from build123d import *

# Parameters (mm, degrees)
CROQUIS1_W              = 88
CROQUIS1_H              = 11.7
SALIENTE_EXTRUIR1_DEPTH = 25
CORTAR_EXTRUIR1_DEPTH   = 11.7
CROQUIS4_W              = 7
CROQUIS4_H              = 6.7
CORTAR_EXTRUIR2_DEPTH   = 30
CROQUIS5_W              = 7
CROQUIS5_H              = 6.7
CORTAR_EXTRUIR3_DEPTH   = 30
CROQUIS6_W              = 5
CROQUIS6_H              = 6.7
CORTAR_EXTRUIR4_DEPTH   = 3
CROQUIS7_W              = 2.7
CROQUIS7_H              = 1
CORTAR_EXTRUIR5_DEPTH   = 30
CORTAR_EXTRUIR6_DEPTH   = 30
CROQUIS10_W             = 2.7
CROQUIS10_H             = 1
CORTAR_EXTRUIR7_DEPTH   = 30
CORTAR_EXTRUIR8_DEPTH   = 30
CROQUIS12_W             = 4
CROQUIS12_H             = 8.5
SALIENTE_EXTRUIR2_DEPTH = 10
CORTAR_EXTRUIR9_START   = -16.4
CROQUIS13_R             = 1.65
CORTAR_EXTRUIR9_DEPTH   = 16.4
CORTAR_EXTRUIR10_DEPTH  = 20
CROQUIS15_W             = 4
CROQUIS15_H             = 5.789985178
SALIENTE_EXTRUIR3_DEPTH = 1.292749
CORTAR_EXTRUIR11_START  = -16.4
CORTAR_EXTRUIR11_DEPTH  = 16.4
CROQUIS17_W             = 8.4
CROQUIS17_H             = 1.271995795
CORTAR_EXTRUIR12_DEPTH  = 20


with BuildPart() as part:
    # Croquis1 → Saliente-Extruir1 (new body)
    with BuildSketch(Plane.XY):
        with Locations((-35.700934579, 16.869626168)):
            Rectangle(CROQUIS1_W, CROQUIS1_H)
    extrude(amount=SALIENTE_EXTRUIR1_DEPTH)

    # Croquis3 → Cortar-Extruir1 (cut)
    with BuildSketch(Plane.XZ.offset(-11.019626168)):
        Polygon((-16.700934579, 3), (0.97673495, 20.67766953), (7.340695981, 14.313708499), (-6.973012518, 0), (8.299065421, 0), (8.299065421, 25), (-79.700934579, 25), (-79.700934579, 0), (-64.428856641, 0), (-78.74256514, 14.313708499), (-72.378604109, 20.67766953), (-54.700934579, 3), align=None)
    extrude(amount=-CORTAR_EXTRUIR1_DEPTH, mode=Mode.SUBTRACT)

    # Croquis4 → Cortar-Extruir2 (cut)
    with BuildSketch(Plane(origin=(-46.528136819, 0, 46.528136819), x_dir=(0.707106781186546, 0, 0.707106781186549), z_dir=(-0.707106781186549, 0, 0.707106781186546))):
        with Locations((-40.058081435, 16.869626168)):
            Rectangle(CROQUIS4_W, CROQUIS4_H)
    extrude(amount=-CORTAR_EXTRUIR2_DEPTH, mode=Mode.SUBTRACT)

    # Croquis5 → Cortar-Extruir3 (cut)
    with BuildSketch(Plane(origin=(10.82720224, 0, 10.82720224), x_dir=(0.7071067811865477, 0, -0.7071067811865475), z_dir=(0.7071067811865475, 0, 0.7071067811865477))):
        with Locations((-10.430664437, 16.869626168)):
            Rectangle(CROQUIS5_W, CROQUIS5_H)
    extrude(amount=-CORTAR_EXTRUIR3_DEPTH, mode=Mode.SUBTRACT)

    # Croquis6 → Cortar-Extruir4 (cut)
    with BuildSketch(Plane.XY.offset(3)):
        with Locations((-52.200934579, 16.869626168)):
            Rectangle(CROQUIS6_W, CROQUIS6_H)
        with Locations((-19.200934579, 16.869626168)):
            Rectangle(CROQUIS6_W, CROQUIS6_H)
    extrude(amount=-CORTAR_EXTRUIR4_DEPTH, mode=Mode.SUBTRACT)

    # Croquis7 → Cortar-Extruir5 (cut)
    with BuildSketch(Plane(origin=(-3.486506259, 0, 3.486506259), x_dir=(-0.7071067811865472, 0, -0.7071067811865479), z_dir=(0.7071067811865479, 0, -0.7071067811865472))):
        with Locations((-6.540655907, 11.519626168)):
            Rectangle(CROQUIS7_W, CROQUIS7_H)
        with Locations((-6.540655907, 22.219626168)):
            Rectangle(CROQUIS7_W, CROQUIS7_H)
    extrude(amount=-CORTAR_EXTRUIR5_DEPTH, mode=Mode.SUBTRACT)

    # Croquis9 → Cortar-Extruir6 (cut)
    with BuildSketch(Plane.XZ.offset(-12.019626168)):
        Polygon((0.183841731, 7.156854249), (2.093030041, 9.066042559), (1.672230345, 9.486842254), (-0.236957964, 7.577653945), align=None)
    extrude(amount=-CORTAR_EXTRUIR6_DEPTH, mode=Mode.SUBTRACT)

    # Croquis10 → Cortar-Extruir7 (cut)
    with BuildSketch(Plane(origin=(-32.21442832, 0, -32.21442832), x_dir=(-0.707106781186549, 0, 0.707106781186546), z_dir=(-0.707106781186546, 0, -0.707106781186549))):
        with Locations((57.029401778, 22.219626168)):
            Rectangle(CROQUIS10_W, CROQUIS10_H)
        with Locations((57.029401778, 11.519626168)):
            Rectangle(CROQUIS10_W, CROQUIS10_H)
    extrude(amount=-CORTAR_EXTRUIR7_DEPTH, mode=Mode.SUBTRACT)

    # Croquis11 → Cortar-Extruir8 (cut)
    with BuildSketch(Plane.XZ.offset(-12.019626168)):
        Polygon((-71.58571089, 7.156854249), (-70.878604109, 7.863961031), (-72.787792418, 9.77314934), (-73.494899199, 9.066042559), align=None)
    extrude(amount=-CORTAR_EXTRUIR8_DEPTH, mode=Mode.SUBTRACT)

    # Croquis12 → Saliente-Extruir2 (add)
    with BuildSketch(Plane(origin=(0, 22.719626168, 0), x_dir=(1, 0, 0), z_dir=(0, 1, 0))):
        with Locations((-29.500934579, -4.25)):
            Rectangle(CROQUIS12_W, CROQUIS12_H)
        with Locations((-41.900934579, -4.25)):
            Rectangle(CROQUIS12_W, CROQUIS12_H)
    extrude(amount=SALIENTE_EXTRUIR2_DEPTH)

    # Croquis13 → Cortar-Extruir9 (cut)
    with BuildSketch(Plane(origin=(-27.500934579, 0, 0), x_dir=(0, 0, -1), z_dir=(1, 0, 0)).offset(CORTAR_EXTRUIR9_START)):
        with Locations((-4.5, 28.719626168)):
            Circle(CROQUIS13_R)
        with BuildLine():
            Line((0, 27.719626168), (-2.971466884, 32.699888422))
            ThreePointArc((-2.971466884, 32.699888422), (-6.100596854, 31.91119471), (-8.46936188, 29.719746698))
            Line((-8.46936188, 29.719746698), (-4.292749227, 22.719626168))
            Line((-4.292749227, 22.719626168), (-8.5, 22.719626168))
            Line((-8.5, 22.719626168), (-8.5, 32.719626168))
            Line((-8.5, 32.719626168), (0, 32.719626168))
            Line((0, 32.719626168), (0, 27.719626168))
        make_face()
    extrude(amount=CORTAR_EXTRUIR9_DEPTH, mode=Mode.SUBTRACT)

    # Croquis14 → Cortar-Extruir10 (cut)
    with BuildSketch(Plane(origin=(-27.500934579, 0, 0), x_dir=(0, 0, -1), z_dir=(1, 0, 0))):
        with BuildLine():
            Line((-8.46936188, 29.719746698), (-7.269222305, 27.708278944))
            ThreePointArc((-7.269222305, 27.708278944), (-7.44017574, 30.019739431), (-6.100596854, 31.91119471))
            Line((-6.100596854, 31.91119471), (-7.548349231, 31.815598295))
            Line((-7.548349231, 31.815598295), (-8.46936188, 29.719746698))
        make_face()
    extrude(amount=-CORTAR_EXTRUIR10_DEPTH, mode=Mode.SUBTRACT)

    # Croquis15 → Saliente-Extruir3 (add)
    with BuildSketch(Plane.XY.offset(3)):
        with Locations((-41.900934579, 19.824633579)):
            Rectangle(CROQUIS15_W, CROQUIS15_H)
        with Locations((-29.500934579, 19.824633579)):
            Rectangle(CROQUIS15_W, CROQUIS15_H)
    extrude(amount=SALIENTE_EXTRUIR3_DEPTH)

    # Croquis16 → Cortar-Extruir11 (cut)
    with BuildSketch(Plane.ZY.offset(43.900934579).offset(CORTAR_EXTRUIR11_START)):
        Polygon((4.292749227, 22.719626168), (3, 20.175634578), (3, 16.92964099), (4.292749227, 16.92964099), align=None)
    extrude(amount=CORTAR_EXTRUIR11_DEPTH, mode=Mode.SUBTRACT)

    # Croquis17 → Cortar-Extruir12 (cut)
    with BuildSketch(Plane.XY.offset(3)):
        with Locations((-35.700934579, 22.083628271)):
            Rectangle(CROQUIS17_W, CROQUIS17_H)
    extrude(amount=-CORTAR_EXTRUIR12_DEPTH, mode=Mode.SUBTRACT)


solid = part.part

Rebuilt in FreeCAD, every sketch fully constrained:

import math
import FreeCAD as App
import Part
import Sketcher
from FreeCAD import Vector
Q = App.Units.Quantity

doc = App.newDocument("Part")
body = doc.addObject("PartDesign::Body", "Body")

# Sketch on XY plane
sketch1 = body.newObject("Sketcher::SketchObject", "Sketch")
sketch1.AttachmentSupport = (doc.getObject("XY_Plane"), [""])
sketch1.MapMode = "FlatFace"
sketch1.addGeometry([
    Part.LineSegment(Vector(-80, 23, 0), Vector(-80, 11, 0)),
    Part.LineSegment(Vector(-80, 11, 0), Vector(8, 11, 0)),
    Part.LineSegment(Vector(8, 11, 0), Vector(8, 23, 0)),
    Part.LineSegment(Vector(8, 23, 0), Vector(-80, 23, 0)),
], False)
sketch1.addConstraint([
    Sketcher.Constraint("Coincident", 0, 2, 1, 1),
    Sketcher.Constraint("Coincident", 1, 2, 2, 1),
    Sketcher.Constraint("Coincident", 2, 2, 3, 1),
    Sketcher.Constraint("Coincident", 3, 2, 0, 1),
    Sketcher.Constraint("Vertical", 0),
    Sketcher.Constraint("Horizontal", 1),
    Sketcher.Constraint("Vertical", 2),
    Sketcher.Constraint("Horizontal", 3),
    Sketcher.Constraint("DistanceX", 1, 1, 1, 2, 88.0),
    Sketcher.Constraint("DistanceY", 0, 2, 0, 1, 11.7),
    Sketcher.Constraint("DistanceX", 0, 2, -1, 1, 79.700935),
    Sketcher.Constraint("DistanceY", -1, 1, 0, 2, 11.019626),
])
pad1 = body.newObject("PartDesign::Pad", "Pad")
pad1.Profile = sketch1
pad1.Length = 25

# Sketch on XZ plane
sketch2 = body.newObject("Sketcher::SketchObject", "Sketch001")
sketch2.AttachmentSupport = (doc.getObject("XZ_Plane"), [""])
sketch2.MapMode = "FlatFace"
sketch2.AttachmentOffset = App.Placement(Vector(0, 0, -11.019626), App.Rotation())
sketch2.addGeometry([
    Part.LineSegment(Vector(-17, 3, 0), Vector(1, 21, 0)),  # 0
    Part.LineSegment(Vector(1, 21, 0), Vector(7, 14, 0)),  # 1
    Part.LineSegment(Vector(7, 14, 0), Vector(-7, 0, 0)),  # 2
    Part.LineSegment(Vector(-7, 0, 0), Vector(8, 0, 0)),  # 3
    Part.LineSegment(Vector(8, 0, 0), Vector(8, 25, 0)),  # 4
    Part.LineSegment(Vector(8, 25, 0), Vector(-80, 25, 0)),  # 5
    Part.LineSegment(Vector(-80, 25, 0), Vector(-80, 0, 0)),  # 6
    Part.LineSegment(Vector(-80, 0, 0), Vector(-64, 0, 0)),  # 7
    Part.LineSegment(Vector(-64, 0, 0), Vector(-79, 14, 0)),  # 8
    Part.LineSegment(Vector(-79, 14, 0), Vector(-72, 21, 0)),  # 9
    Part.LineSegment(Vector(-72, 21, 0), Vector(-55, 3, 0)),  # 10
    Part.LineSegment(Vector(-55, 3, 0), Vector(-17, 3, 0)),  # 11
], False)
sketch2.addConstraint([
    Sketcher.Constraint("Coincident", 0, 2, 1, 1),
    Sketcher.Constraint("Coincident", 1, 2, 2, 1),
    Sketcher.Constraint("Coincident", 2, 2, 3, 1),
    Sketcher.Constraint("Coincident", 3, 2, 4, 1),
    Sketcher.Constraint("Coincident", 4, 2, 5, 1),
    Sketcher.Constraint("Coincident", 5, 2, 6, 1),
    Sketcher.Constraint("Coincident", 6, 2, 7, 1),
    Sketcher.Constraint("Coincident", 7, 2, 8, 1),
    Sketcher.Constraint("Coincident", 8, 2, 9, 1),
    Sketcher.Constraint("Coincident", 9, 2, 10, 1),
    Sketcher.Constraint("Coincident", 10, 2, 11, 1),
    Sketcher.Constraint("Coincident", 11, 2, 0, 1),
    Sketcher.Constraint("Horizontal", 3),
    Sketcher.Constraint("Vertical", 4),
    Sketcher.Constraint("Horizontal", 5),
    Sketcher.Constraint("Vertical", 6),
    Sketcher.Constraint("Horizontal", 7),
    Sketcher.Constraint("Horizontal", 11),
    Sketcher.Constraint("PointOnObject", 2, 2, -1),
    Sketcher.Constraint("PointOnObject", 6, 2, -1),
    Sketcher.Constraint("Perpendicular", 0, 1),
    Sketcher.Constraint("Perpendicular", 1, 2),
    Sketcher.Constraint("Perpendicular", 2, 8),
    Sketcher.Constraint("Perpendicular", 8, 9),
    Sketcher.Constraint("Perpendicular", 9, 10),
    Sketcher.Constraint("Horizontal", 1, 2, 8, 2),
    Sketcher.Constraint("Horizontal", 0, 2, 9, 2),
    Sketcher.Constraint("Equal", 3, 7),
    Sketcher.Constraint("Equal", 2, 8),
    Sketcher.Constraint("DistanceX", 5, 2, 5, 1, 88.0),
    Sketcher.Constraint("DistanceX", 11, 1, 11, 2, 38.0),
    Sketcher.Constraint("DistanceY", 4, 1, 4, 2, 25.0),
    Sketcher.Constraint("Distance", 0, 25.0),
    Sketcher.Constraint("Distance", 1, 9.0),
    Sketcher.Constraint("DistanceY", -1, 1, 10, 2, 3.0),
    Sketcher.Constraint("DistanceX", -1, 1, 0, 2, 0.976735),
])
pocket1 = body.newObject("PartDesign::Pocket", "Pocket")
pocket1.Profile = sketch2
pocket1.Length = 11.7

# Sketch on an angled plane
sketch3 = body.newObject("Sketcher::SketchObject", "Sketch002")
sketch3.Placement = App.Placement(Vector(-46.528137, 0, 46.528137), App.Rotation(Vector(0.707106781, 0, 0.707106781), Vector(0, 0.999999999, 0), Vector(-0.707106781, 0, 0.707106781), "ZXY"))
sketch3.addGeometry([
    Part.LineSegment(Vector(-44, 20, 0), Vector(-44, 14, 0)),
    Part.LineSegment(Vector(-44, 14, 0), Vector(-37, 14, 0)),
    Part.LineSegment(Vector(-37, 14, 0), Vector(-37, 20, 0)),
    Part.LineSegment(Vector(-37, 20, 0), Vector(-44, 20, 0)),
], False)
sketch3.addConstraint([
    Sketcher.Constraint("Coincident", 0, 2, 1, 1),
    Sketcher.Constraint("Coincident", 1, 2, 2, 1),
    Sketcher.Constraint("Coincident", 2, 2, 3, 1),
    Sketcher.Constraint("Coincident", 3, 2, 0, 1),
    Sketcher.Constraint("Vertical", 0),
    Sketcher.Constraint("Horizontal", 1),
    Sketcher.Constraint("Vertical", 2),
    Sketcher.Constraint("Horizontal", 3),
    Sketcher.Constraint("DistanceX", 1, 1, 1, 2, 7.0),
    Sketcher.Constraint("DistanceY", 0, 2, 0, 1, 6.7),
    Sketcher.Constraint("DistanceX", 0, 2, -1, 1, 43.558081),
    Sketcher.Constraint("DistanceY", -1, 1, 0, 2, 13.519626),
])
pocket2 = body.newObject("PartDesign::Pocket", "Pocket001")
pocket2.Profile = sketch3
pocket2.Length = 30

# Sketch on an angled plane
sketch4 = body.newObject("Sketcher::SketchObject", "Sketch003")
sketch4.Placement = App.Placement(Vector(10.827202, 0, 10.827202), App.Rotation(Vector(0.707106781, 0, -0.707106781), Vector(0, 0.999999999, 0), Vector(0.707106781, 0, 0.707106781), "ZXY"))
sketch4.addGeometry([
    Part.LineSegment(Vector(-14, 20, 0), Vector(-14, 14, 0)),
    Part.LineSegment(Vector(-14, 14, 0), Vector(-7, 14, 0)),
    Part.LineSegment(Vector(-7, 14, 0), Vector(-7, 20, 0)),
    Part.LineSegment(Vector(-7, 20, 0), Vector(-14, 20, 0)),
], False)
sketch4.addConstraint([
    Sketcher.Constraint("Coincident", 0, 2, 1, 1),
    Sketcher.Constraint("Coincident", 1, 2, 2, 1),
    Sketcher.Constraint("Coincident", 2, 2, 3, 1),
    Sketcher.Constraint("Coincident", 3, 2, 0, 1),
    Sketcher.Constraint("Vertical", 0),
    Sketcher.Constraint("Horizontal", 1),
    Sketcher.Constraint("Vertical", 2),
    Sketcher.Constraint("Horizontal", 3),
    Sketcher.Constraint("DistanceX", 1, 1, 1, 2, 7.0),
    Sketcher.Constraint("DistanceY", 0, 2, 0, 1, 6.7),
    Sketcher.Constraint("DistanceX", 0, 2, -1, 1, 13.930664),
    Sketcher.Constraint("DistanceY", -1, 1, 0, 2, 13.519626),
])
pocket3 = body.newObject("PartDesign::Pocket", "Pocket002")
pocket3.Profile = sketch4
pocket3.Length = 30

# Sketch on XY plane
sketch5 = body.newObject("Sketcher::SketchObject", "Sketch004")
sketch5.AttachmentSupport = (doc.getObject("XY_Plane"), [""])
sketch5.MapMode = "FlatFace"
sketch5.AttachmentOffset = App.Placement(Vector(0, 0, 3), App.Rotation())
sketch5.addGeometry([
    Part.LineSegment(Vector(-55, 20, 0), Vector(-55, 14, 0)),  # 0
    Part.LineSegment(Vector(-55, 14, 0), Vector(-50, 14, 0)),  # 1
    Part.LineSegment(Vector(-50, 14, 0), Vector(-50, 20, 0)),  # 2
    Part.LineSegment(Vector(-50, 20, 0), Vector(-55, 20, 0)),  # 3
    Part.LineSegment(Vector(-22, 20, 0), Vector(-22, 14, 0)),  # 4
    Part.LineSegment(Vector(-22, 14, 0), Vector(-17, 14, 0)),  # 5
    Part.LineSegment(Vector(-17, 14, 0), Vector(-17, 20, 0)),  # 6
    Part.LineSegment(Vector(-17, 20, 0), Vector(-22, 20, 0)),  # 7
], False)
sketch5.addConstraint([
    Sketcher.Constraint("Coincident", 0, 2, 1, 1),
    Sketcher.Constraint("Coincident", 1, 2, 2, 1),
    Sketcher.Constraint("Coincident", 2, 2, 3, 1),
    Sketcher.Constraint("Coincident", 3, 2, 0, 1),
    Sketcher.Constraint("Coincident", 4, 2, 5, 1),
    Sketcher.Constraint("Coincident", 5, 2, 6, 1),
    Sketcher.Constraint("Coincident", 6, 2, 7, 1),
    Sketcher.Constraint("Coincident", 7, 2, 4, 1),
    Sketcher.Constraint("Vertical", 0),
    Sketcher.Constraint("Horizontal", 1),
    Sketcher.Constraint("Vertical", 2),
    Sketcher.Constraint("Horizontal", 3),
    Sketcher.Constraint("Vertical", 4),
    Sketcher.Constraint("Horizontal", 5),
    Sketcher.Constraint("Vertical", 6),
    Sketcher.Constraint("Horizontal", 7),
    Sketcher.Constraint("Horizontal", 1, 2, 4, 2),
    Sketcher.Constraint("Horizontal", 3, 2, 6, 2),
    Sketcher.Constraint("Equal", 3, 5),
    Sketcher.Constraint("DistanceX", 1, 1, 1, 2, 5.0),
    Sketcher.Constraint("DistanceY", 0, 2, 0, 1, 6.7),
    Sketcher.Constraint("DistanceX", 1, 2, 4, 2, 28.0),
    Sketcher.Constraint("DistanceX", 0, 2, -1, 1, 54.700935),
    Sketcher.Constraint("DistanceY", -1, 1, 0, 2, 13.519626),
])
pocket4 = body.newObject("PartDesign::Pocket", "Pocket003")
pocket4.Profile = sketch5
pocket4.Length = 3

# Sketch on an angled plane
sketch6 = body.newObject("Sketcher::SketchObject", "Sketch005")
sketch6.Placement = App.Placement(Vector(-3.486506, 0, 3.486506), App.Rotation(Vector(-0.707106781, 0, -0.707106781), Vector(0, 0.999999999, 0), Vector(0.707106781, 0, -0.707106781), "ZXY"))
sketch6.addGeometry([
    Part.LineSegment(Vector(-7.9, 12, 0), Vector(-7.9, 11, 0)),  # 0
    Part.LineSegment(Vector(-7.9, 11, 0), Vector(-5.2, 11, 0)),  # 1
    Part.LineSegment(Vector(-5.2, 11, 0), Vector(-5.2, 12, 0)),  # 2
    Part.LineSegment(Vector(-5.2, 12, 0), Vector(-7.9, 12, 0)),  # 3
    Part.LineSegment(Vector(-7.9, 22.7, 0), Vector(-7.9, 21.7, 0)),  # 4
    Part.LineSegment(Vector(-7.9, 21.7, 0), Vector(-5.2, 21.7, 0)),  # 5
    Part.LineSegment(Vector(-5.2, 21.7, 0), Vector(-5.2, 22.7, 0)),  # 6
    Part.LineSegment(Vector(-5.2, 22.7, 0), Vector(-7.9, 22.7, 0)),  # 7
], False)
sketch6.addConstraint([
    Sketcher.Constraint("Coincident", 0, 2, 1, 1),
    Sketcher.Constraint("Coincident", 1, 2, 2, 1),
    Sketcher.Constraint("Coincident", 2, 2, 3, 1),
    Sketcher.Constraint("Coincident", 3, 2, 0, 1),
    Sketcher.Constraint("Coincident", 4, 2, 5, 1),
    Sketcher.Constraint("Coincident", 5, 2, 6, 1),
    Sketcher.Constraint("Coincident", 6, 2, 7, 1),
    Sketcher.Constraint("Coincident", 7, 2, 4, 1),
    Sketcher.Constraint("Vertical", 0),
    Sketcher.Constraint("Horizontal", 1),
    Sketcher.Constraint("Vertical", 2),
    Sketcher.Constraint("Horizontal", 3),
    Sketcher.Constraint("Vertical", 4),
    Sketcher.Constraint("Horizontal", 5),
    Sketcher.Constraint("Vertical", 6),
    Sketcher.Constraint("Horizontal", 7),
    Sketcher.Constraint("Vertical", 3, 2, 4, 2),
    Sketcher.Constraint("Vertical", 2, 2, 5, 2),
    Sketcher.Constraint("Equal", 2, 4),
    Sketcher.Constraint("DistanceY", 0, 2, 0, 1, 1.0),
    Sketcher.Constraint("DistanceX", 1, 1, 1, 2, 2.7),
    Sketcher.Constraint("DistanceY", 3, 2, 4, 2, 9.7),
    Sketcher.Constraint("DistanceX", 0, 2, -1, 1, 7.890656),
    Sketcher.Constraint("DistanceY", -1, 1, 0, 2, 11.019626),
])
pocket5 = body.newObject("PartDesign::Pocket", "Pocket004")
pocket5.Profile = sketch6
pocket5.Length = 30

# Sketch on XZ plane
sketch7 = body.newObject("Sketcher::SketchObject", "Sketch006")
sketch7.AttachmentSupport = (doc.getObject("XZ_Plane"), [""])
sketch7.MapMode = "FlatFace"
sketch7.AttachmentOffset = App.Placement(Vector(0, 0, -12.019626), App.Rotation())
sketch7.addGeometry([
    Part.LineSegment(Vector(0.2, 7.2, 0), Vector(2.1, 9.1, 0)),
    Part.LineSegment(Vector(2.1, 9.1, 0), Vector(1.7, 9.5, 0)),
    Part.LineSegment(Vector(1.7, 9.5, 0), Vector(-0.2, 7.6, 0)),
    Part.LineSegment(Vector(-0.2, 7.6, 0), Vector(0.2, 7.2, 0)),
], False)
sketch7.addConstraint([
    Sketcher.Constraint("Coincident", 0, 2, 1, 1),
    Sketcher.Constraint("Coincident", 1, 2, 2, 1),
    Sketcher.Constraint("Coincident", 2, 2, 3, 1),
    Sketcher.Constraint("Coincident", 3, 2, 0, 1),
    Sketcher.Constraint("Perpendicular", 0, 1),
    Sketcher.Constraint("Perpendicular", 1, 2),
    Sketcher.Constraint("Perpendicular", 2, 3),
    Sketcher.Constraint("Angle", 0, Q("45 deg")),
    Sketcher.Constraint("Distance", 0, 2.7),
    Sketcher.Constraint("Distance", 1, 0.595101),
    Sketcher.Constraint("DistanceX", -1, 1, 0, 2, 2.09303),
    Sketcher.Constraint("DistanceY", -1, 1, 0, 2, 9.066043),
])
pocket6 = body.newObject("PartDesign::Pocket", "Pocket005")
pocket6.Profile = sketch7
pocket6.Length = 30

# Sketch on an angled plane
sketch8 = body.newObject("Sketcher::SketchObject", "Sketch007")
sketch8.Placement = App.Placement(Vector(-32.214428, 0, -32.214428), App.Rotation(Vector(-0.707106781, 0, 0.707106781), Vector(0, 0.999999999, 0), Vector(-0.707106781, 0, -0.707106781), "ZXY"))
sketch8.addGeometry([
    Part.LineSegment(Vector(55.7, 22.7, 0), Vector(55.7, 21.7, 0)),  # 0
    Part.LineSegment(Vector(55.7, 21.7, 0), Vector(58.4, 21.7, 0)),  # 1
    Part.LineSegment(Vector(58.4, 21.7, 0), Vector(58.4, 22.7, 0)),  # 2
    Part.LineSegment(Vector(58.4, 22.7, 0), Vector(55.7, 22.7, 0)),  # 3
    Part.LineSegment(Vector(55.7, 12, 0), Vector(55.7, 11, 0)),  # 4
    Part.LineSegment(Vector(55.7, 11, 0), Vector(58.4, 11, 0)),  # 5
    Part.LineSegment(Vector(58.4, 11, 0), Vector(58.4, 12, 0)),  # 6
    Part.LineSegment(Vector(58.4, 12, 0), Vector(55.7, 12, 0)),  # 7
], False)
sketch8.addConstraint([
    Sketcher.Constraint("Coincident", 0, 2, 1, 1),
    Sketcher.Constraint("Coincident", 1, 2, 2, 1),
    Sketcher.Constraint("Coincident", 2, 2, 3, 1),
    Sketcher.Constraint("Coincident", 3, 2, 0, 1),
    Sketcher.Constraint("Coincident", 4, 2, 5, 1),
    Sketcher.Constraint("Coincident", 5, 2, 6, 1),
    Sketcher.Constraint("Coincident", 6, 2, 7, 1),
    Sketcher.Constraint("Coincident", 7, 2, 4, 1),
    Sketcher.Constraint("Vertical", 0),
    Sketcher.Constraint("Horizontal", 1),
    Sketcher.Constraint("Vertical", 2),
    Sketcher.Constraint("Horizontal", 3),
    Sketcher.Constraint("Vertical", 4),
    Sketcher.Constraint("Horizontal", 5),
    Sketcher.Constraint("Vertical", 6),
    Sketcher.Constraint("Horizontal", 7),
    Sketcher.Constraint("Vertical", 3, 2, 4, 2),
    Sketcher.Constraint("Vertical", 2, 2, 5, 2),
    Sketcher.Constraint("Equal", 2, 4),
    Sketcher.Constraint("DistanceY", 0, 2, 0, 1, 1.0),
    Sketcher.Constraint("DistanceX", 1, 1, 1, 2, 2.7),
    Sketcher.Constraint("DistanceY", 4, 2, 0, 2, 10.7),
    Sketcher.Constraint("DistanceX", -1, 1, 0, 2, 55.679402),
    Sketcher.Constraint("DistanceY", -1, 1, 0, 2, 21.719626),
])
pocket7 = body.newObject("PartDesign::Pocket", "Pocket006")
pocket7.Profile = sketch8
pocket7.Length = 30

# Sketch on XZ plane
sketch9 = body.newObject("Sketcher::SketchObject", "Sketch008")
sketch9.AttachmentSupport = (doc.getObject("XZ_Plane"), [""])
sketch9.MapMode = "FlatFace"
sketch9.AttachmentOffset = App.Placement(Vector(0, 0, -12.019626), App.Rotation())
sketch9.addGeometry([
    Part.LineSegment(Vector(-71.6, 7.2, 0), Vector(-70.9, 7.9, 0)),
    Part.LineSegment(Vector(-70.9, 7.9, 0), Vector(-72.8, 9.8, 0)),
    Part.LineSegment(Vector(-72.8, 9.8, 0), Vector(-73.5, 9.1, 0)),
    Part.LineSegment(Vector(-73.5, 9.1, 0), Vector(-71.6, 7.2, 0)),
], False)
sketch9.addConstraint([
    Sketcher.Constraint("Coincident", 0, 2, 1, 1),
    Sketcher.Constraint("Coincident", 1, 2, 2, 1),
    Sketcher.Constraint("Coincident", 2, 2, 3, 1),
    Sketcher.Constraint("Coincident", 3, 2, 0, 1),
    Sketcher.Constraint("Perpendicular", 0, 1),
    Sketcher.Constraint("Perpendicular", 1, 2),
    Sketcher.Constraint("Perpendicular", 2, 3),
    Sketcher.Constraint("Angle", 0, Q("45 deg")),
    Sketcher.Constraint("Distance", 0, 1.0),
    Sketcher.Constraint("Distance", 1, 2.7),
    Sketcher.Constraint("DistanceX", 2, 2, -1, 1, 73.494899),
    Sketcher.Constraint("DistanceY", -1, 1, 0, 2, 7.863961),
])
pocket8 = body.newObject("PartDesign::Pocket", "Pocket007")
pocket8.Profile = sketch9
pocket8.Length = 30

# Sketch on XZ plane
sketch10 = body.newObject("Sketcher::SketchObject", "Sketch009")
sketch10.AttachmentSupport = (doc.getObject("XZ_Plane"), [""])
sketch10.MapMode = "FlatFace"
sketch10.AttachmentOffset = App.Placement(Vector(0, 0, -22.719626), App.Rotation())
sketch10.addGeometry([
    Part.LineSegment(Vector(-31.5, 0, 0), Vector(-31.5, 8.5, 0)),  # 0
    Part.LineSegment(Vector(-31.5, 8.5, 0), Vector(-27.5, 8.5, 0)),  # 1
    Part.LineSegment(Vector(-27.5, 8.5, 0), Vector(-27.5, 0, 0)),  # 2
    Part.LineSegment(Vector(-27.5, 0, 0), Vector(-31.5, 0, 0)),  # 3
    Part.LineSegment(Vector(-43.9, 0, 0), Vector(-43.9, 8.5, 0)),  # 4
    Part.LineSegment(Vector(-43.9, 8.5, 0), Vector(-39.9, 8.5, 0)),  # 5
    Part.LineSegment(Vector(-39.9, 8.5, 0), Vector(-39.9, 0, 0)),  # 6
    Part.LineSegment(Vector(-39.9, 0, 0), Vector(-43.9, 0, 0)),  # 7
], False)
sketch10.addConstraint([
    Sketcher.Constraint("Coincident", 0, 2, 1, 1),
    Sketcher.Constraint("Coincident", 1, 2, 2, 1),
    Sketcher.Constraint("Coincident", 2, 2, 3, 1),
    Sketcher.Constraint("Coincident", 3, 2, 0, 1),
    Sketcher.Constraint("Coincident", 4, 2, 5, 1),
    Sketcher.Constraint("Coincident", 5, 2, 6, 1),
    Sketcher.Constraint("Coincident", 6, 2, 7, 1),
    Sketcher.Constraint("Coincident", 7, 2, 4, 1),
    Sketcher.Constraint("Vertical", 0),
    Sketcher.Constraint("Horizontal", 1),
    Sketcher.Constraint("Vertical", 2),
    Sketcher.Constraint("Horizontal", 3),
    Sketcher.Constraint("Vertical", 4),
    Sketcher.Constraint("Horizontal", 5),
    Sketcher.Constraint("Vertical", 6),
    Sketcher.Constraint("Horizontal", 7),
    Sketcher.Constraint("PointOnObject", 2, 2, -1),
    Sketcher.Constraint("PointOnObject", 6, 2, -1),
    Sketcher.Constraint("Horizontal", 1, 2, 4, 2),
    Sketcher.Constraint("Equal", 3, 5),
    Sketcher.Constraint("DistanceX", 1, 1, 1, 2, 4.0),
    Sketcher.Constraint("DistanceY", 0, 1, 0, 2, 8.5),
    Sketcher.Constraint("DistanceX", 4, 2, 0, 2, 12.4),
    Sketcher.Constraint("DistanceX", 0, 2, -1, 1, 31.500935),
])
pad2 = body.newObject("PartDesign::Pad", "Pad001")
pad2.Profile = sketch10
pad2.Length = 10
pad2.Reversed = True

# Sketch on YZ plane
sketch11 = body.newObject("Sketcher::SketchObject", "Sketch010")
sketch11.AttachmentSupport = (doc.getObject("YZ_Plane"), [""])
sketch11.MapMode = "FlatFace"
sketch11.AttachmentOffset = App.Placement(Vector(0, 0, -43.900935), App.Rotation())
sketch11.addGeometry([
    Part.Circle(Vector(28.7, 4.5, 0), Vector(0, 0, 1), 1.6),  # 0
    Part.LineSegment(Vector(32.7, 3, 0), Vector(27.7, 0, 0)),  # 1
    Part.LineSegment(Vector(27.7, 0, 0), Vector(32.7, 0, 0)),  # 2
    Part.LineSegment(Vector(32.7, 0, 0), Vector(32.7, 8.5, 0)),  # 3
    Part.LineSegment(Vector(32.7, 8.5, 0), Vector(22.7, 8.5, 0)),  # 4
    Part.LineSegment(Vector(22.7, 8.5, 0), Vector(22.7, 4.3, 0)),  # 5
    Part.LineSegment(Vector(22.7, 4.3, 0), Vector(29.7, 8.5, 0)),  # 6
    Part.ArcOfCircle(Part.Circle(Vector(26.2, 3, 0), Vector(0, 0, 1), 6.5), math.radians(0), math.radians(57)),  # 7
], False)
sketch11.addConstraint([
    Sketcher.Constraint("Coincident", 1, 2, 2, 1),
    Sketcher.Constraint("Coincident", 2, 2, 3, 1),
    Sketcher.Constraint("Coincident", 3, 2, 4, 1),
    Sketcher.Constraint("Coincident", 4, 2, 5, 1),
    Sketcher.Constraint("Coincident", 5, 2, 6, 1),
    Sketcher.Constraint("Coincident", 6, 2, 7, 2),
    Sketcher.Constraint("Coincident", 7, 1, 1, 1),
    Sketcher.Constraint("Horizontal", 2),
    Sketcher.Constraint("Vertical", 3),
    Sketcher.Constraint("Horizontal", 4),
    Sketcher.Constraint("Vertical", 5),
    Sketcher.Constraint("PointOnObject", 1, 2, -1),
    Sketcher.Constraint("Parallel", 1, 6),
    Sketcher.Constraint("Diameter", 0, 3.3),
    Sketcher.Constraint("DistanceX", 2, 1, 2, 2, 5.0),
    Sketcher.Constraint("DistanceX", 4, 2, 4, 1, 10.0),
    Sketcher.Constraint("DistanceY", 3, 1, 3, 2, 8.5),
    Sketcher.Constraint("DistanceX", 1, 2, 0, 3, 1.0),
    Sketcher.Constraint("DistanceY", 0, 3, 3, 2, 4.0),
    Sketcher.Constraint("Radius", 7, 6.526463),
    Sketcher.Constraint("DistanceY", 5, 2, 5, 1, 4.207251),
    Sketcher.Constraint("Distance", 6, 8.151428),
    Sketcher.Constraint("DistanceY", -1, 1, 6, 2, 8.469362),
    Sketcher.Constraint("DistanceX", -1, 1, 7, 1, 32.699888),
    Sketcher.Constraint("DistanceX", 6, 2, 7, 1, 2.980142),
])
pocket9 = body.newObject("PartDesign::Pocket", "Pocket008")
pocket9.Profile = sketch11
pocket9.Length = 16.4
pocket9.Reversed = True

# Sketch on YZ plane
sketch12 = body.newObject("Sketcher::SketchObject", "Sketch011")
sketch12.AttachmentSupport = (doc.getObject("YZ_Plane"), [""])
sketch12.MapMode = "FlatFace"
sketch12.AttachmentOffset = App.Placement(Vector(0, 0, -27.500935), App.Rotation())
sketch12.addGeometry([
    Part.LineSegment(Vector(29.7, 8.5, 0), Vector(27.7, 7.3, 0)),
    Part.ArcOfCircle(Part.Circle(Vector(29.1, 4.1, 0), Vector(0, 0, 1), 3.4), math.radians(35), math.radians(114)),
    Part.LineSegment(Vector(31.9, 6.1, 0), Vector(31.8, 7.5, 0)),
    Part.LineSegment(Vector(31.8, 7.5, 0), Vector(29.7, 8.5, 0)),
], False)
sketch12.addConstraint([
    Sketcher.Constraint("Coincident", 0, 2, 1, 2),
    Sketcher.Constraint("Coincident", 1, 1, 2, 1),
    Sketcher.Constraint("Coincident", 2, 2, 3, 1),
    Sketcher.Constraint("Coincident", 3, 2, 0, 1),
    Sketcher.Constraint("Radius", 1, 3.426425),
    Sketcher.Constraint("DistanceX", -1, 1, 2, 2, 31.815598),
    Sketcher.Constraint("DistanceX", -1, 1, 1, 3, 29.10184),
    Sketcher.Constraint("DistanceX", -1, 1, 0, 2, 27.708279),
    Sketcher.Constraint("DistanceY", -1, 1, 2, 2, 7.548349),
    Sketcher.Constraint("DistanceY", -1, 1, 3, 2, 8.469362),
    Sketcher.Constraint("DistanceY", 1, 3, 1, 1, 1.96161),
    Sketcher.Constraint("DistanceX", 3, 2, 2, 2, 2.095852),
    Sketcher.Constraint("DistanceY", 0, 2, 3, 2, 1.20014),
])
pocket10 = body.newObject("PartDesign::Pocket", "Pocket009")
pocket10.Profile = sketch12
pocket10.Length = 20

# Sketch on XY plane
sketch13 = body.newObject("Sketcher::SketchObject", "Sketch012")
sketch13.AttachmentSupport = (doc.getObject("XY_Plane"), [""])
sketch13.MapMode = "FlatFace"
sketch13.AttachmentOffset = App.Placement(Vector(0, 0, 3), App.Rotation())
sketch13.addGeometry([
    Part.LineSegment(Vector(-43.9, 22.7, 0), Vector(-43.9, 16.9, 0)),  # 0
    Part.LineSegment(Vector(-43.9, 16.9, 0), Vector(-39.9, 16.9, 0)),  # 1
    Part.LineSegment(Vector(-39.9, 16.9, 0), Vector(-39.9, 22.7, 0)),  # 2
    Part.LineSegment(Vector(-39.9, 22.7, 0), Vector(-43.9, 22.7, 0)),  # 3
    Part.LineSegment(Vector(-31.5, 22.7, 0), Vector(-31.5, 16.9, 0)),  # 4
    Part.LineSegment(Vector(-31.5, 16.9, 0), Vector(-27.5, 16.9, 0)),  # 5
    Part.LineSegment(Vector(-27.5, 16.9, 0), Vector(-27.5, 22.7, 0)),  # 6
    Part.LineSegment(Vector(-27.5, 22.7, 0), Vector(-31.5, 22.7, 0)),  # 7
], False)
sketch13.addConstraint([
    Sketcher.Constraint("Coincident", 0, 2, 1, 1),
    Sketcher.Constraint("Coincident", 1, 2, 2, 1),
    Sketcher.Constraint("Coincident", 2, 2, 3, 1),
    Sketcher.Constraint("Coincident", 3, 2, 0, 1),
    Sketcher.Constraint("Coincident", 4, 2, 5, 1),
    Sketcher.Constraint("Coincident", 5, 2, 6, 1),
    Sketcher.Constraint("Coincident", 6, 2, 7, 1),
    Sketcher.Constraint("Coincident", 7, 2, 4, 1),
    Sketcher.Constraint("Vertical", 0),
    Sketcher.Constraint("Horizontal", 1),
    Sketcher.Constraint("Vertical", 2),
    Sketcher.Constraint("Horizontal", 3),
    Sketcher.Constraint("Vertical", 4),
    Sketcher.Constraint("Horizontal", 5),
    Sketcher.Constraint("Vertical", 6),
    Sketcher.Constraint("Horizontal", 7),
    Sketcher.Constraint("Horizontal", 1, 2, 4, 2),
    Sketcher.Constraint("Horizontal", 3, 2, 6, 2),
    Sketcher.Constraint("Equal", 3, 5),
    Sketcher.Constraint("DistanceX", 1, 1, 1, 2, 4.0),
    Sketcher.Constraint("DistanceX", 1, 2, 4, 2, 8.4),
    Sketcher.Constraint("DistanceY", 0, 2, 0, 1, 5.789985),
    Sketcher.Constraint("DistanceY", -1, 1, 0, 2, 16.929641),
    Sketcher.Constraint("DistanceX", 0, 2, -1, 1, 43.900935),
])
pad3 = body.newObject("PartDesign::Pad", "Pad002")
pad3.Profile = sketch13
pad3.Length = 1.292749

# Sketch on YZ plane
sketch14 = body.newObject("Sketcher::SketchObject", "Sketch013")
sketch14.AttachmentSupport = (doc.getObject("YZ_Plane"), [""])
sketch14.MapMode = "FlatFace"
sketch14.AttachmentOffset = App.Placement(Vector(0, 0, -27.500935), App.Rotation())
sketch14.addGeometry([
    Part.LineSegment(Vector(22.7, 4.3, 0), Vector(20.2, 3, 0)),
    Part.LineSegment(Vector(20.2, 3, 0), Vector(16.9, 3, 0)),
    Part.LineSegment(Vector(16.9, 3, 0), Vector(16.9, 4.3, 0)),
    Part.LineSegment(Vector(16.9, 4.3, 0), Vector(22.7, 4.3, 0)),
], False)
sketch14.addConstraint([
    Sketcher.Constraint("Coincident", 0, 2, 1, 1),
    Sketcher.Constraint("Coincident", 1, 2, 2, 1),
    Sketcher.Constraint("Coincident", 2, 2, 3, 1),
    Sketcher.Constraint("Coincident", 3, 2, 0, 1),
    Sketcher.Constraint("Horizontal", 1),
    Sketcher.Constraint("Vertical", 2),
    Sketcher.Constraint("Horizontal", 3),
    Sketcher.Constraint("DistanceY", -1, 1, 0, 2, 3.0),
    Sketcher.Constraint("DistanceY", 2, 1, 2, 2, 1.292749),
    Sketcher.Constraint("Distance", 0, 2.853611),
    Sketcher.Constraint("DistanceX", 1, 2, 1, 1, 3.245994),
    Sketcher.Constraint("DistanceX", -1, 1, 1, 2, 16.929641),
])
pocket11 = body.newObject("PartDesign::Pocket", "Pocket010")
pocket11.Profile = sketch14
pocket11.Length = 16.4

# Sketch on XY plane
sketch15 = body.newObject("Sketcher::SketchObject", "Sketch014")
sketch15.AttachmentSupport = (doc.getObject("XY_Plane"), [""])
sketch15.MapMode = "FlatFace"
sketch15.AttachmentOffset = App.Placement(Vector(0, 0, 3), App.Rotation())
sketch15.addGeometry([
    Part.LineSegment(Vector(-39.9, 22.7, 0), Vector(-39.9, 21.4, 0)),
    Part.LineSegment(Vector(-39.9, 21.4, 0), Vector(-31.5, 21.4, 0)),
    Part.LineSegment(Vector(-31.5, 21.4, 0), Vector(-31.5, 22.7, 0)),
    Part.LineSegment(Vector(-31.5, 22.7, 0), Vector(-39.9, 22.7, 0)),
], False)
sketch15.addConstraint([
    Sketcher.Constraint("Coincident", 0, 2, 1, 1),
    Sketcher.Constraint("Coincident", 1, 2, 2, 1),
    Sketcher.Constraint("Coincident", 2, 2, 3, 1),
    Sketcher.Constraint("Coincident", 3, 2, 0, 1),
    Sketcher.Constraint("Vertical", 0),
    Sketcher.Constraint("Horizontal", 1),
    Sketcher.Constraint("Vertical", 2),
    Sketcher.Constraint("Horizontal", 3),
    Sketcher.Constraint("DistanceX", 1, 1, 1, 2, 8.4),
    Sketcher.Constraint("DistanceY", 0, 2, 0, 1, 1.271996),
    Sketcher.Constraint("DistanceY", -1, 1, 0, 2, 21.44763),
    Sketcher.Constraint("DistanceX", 0, 2, -1, 1, 39.900935),
])
pocket12 = body.newObject("PartDesign::Pocket", "Pocket011")
pocket12.Profile = sketch15
pocket12.Length = 20

doc.recompute()
